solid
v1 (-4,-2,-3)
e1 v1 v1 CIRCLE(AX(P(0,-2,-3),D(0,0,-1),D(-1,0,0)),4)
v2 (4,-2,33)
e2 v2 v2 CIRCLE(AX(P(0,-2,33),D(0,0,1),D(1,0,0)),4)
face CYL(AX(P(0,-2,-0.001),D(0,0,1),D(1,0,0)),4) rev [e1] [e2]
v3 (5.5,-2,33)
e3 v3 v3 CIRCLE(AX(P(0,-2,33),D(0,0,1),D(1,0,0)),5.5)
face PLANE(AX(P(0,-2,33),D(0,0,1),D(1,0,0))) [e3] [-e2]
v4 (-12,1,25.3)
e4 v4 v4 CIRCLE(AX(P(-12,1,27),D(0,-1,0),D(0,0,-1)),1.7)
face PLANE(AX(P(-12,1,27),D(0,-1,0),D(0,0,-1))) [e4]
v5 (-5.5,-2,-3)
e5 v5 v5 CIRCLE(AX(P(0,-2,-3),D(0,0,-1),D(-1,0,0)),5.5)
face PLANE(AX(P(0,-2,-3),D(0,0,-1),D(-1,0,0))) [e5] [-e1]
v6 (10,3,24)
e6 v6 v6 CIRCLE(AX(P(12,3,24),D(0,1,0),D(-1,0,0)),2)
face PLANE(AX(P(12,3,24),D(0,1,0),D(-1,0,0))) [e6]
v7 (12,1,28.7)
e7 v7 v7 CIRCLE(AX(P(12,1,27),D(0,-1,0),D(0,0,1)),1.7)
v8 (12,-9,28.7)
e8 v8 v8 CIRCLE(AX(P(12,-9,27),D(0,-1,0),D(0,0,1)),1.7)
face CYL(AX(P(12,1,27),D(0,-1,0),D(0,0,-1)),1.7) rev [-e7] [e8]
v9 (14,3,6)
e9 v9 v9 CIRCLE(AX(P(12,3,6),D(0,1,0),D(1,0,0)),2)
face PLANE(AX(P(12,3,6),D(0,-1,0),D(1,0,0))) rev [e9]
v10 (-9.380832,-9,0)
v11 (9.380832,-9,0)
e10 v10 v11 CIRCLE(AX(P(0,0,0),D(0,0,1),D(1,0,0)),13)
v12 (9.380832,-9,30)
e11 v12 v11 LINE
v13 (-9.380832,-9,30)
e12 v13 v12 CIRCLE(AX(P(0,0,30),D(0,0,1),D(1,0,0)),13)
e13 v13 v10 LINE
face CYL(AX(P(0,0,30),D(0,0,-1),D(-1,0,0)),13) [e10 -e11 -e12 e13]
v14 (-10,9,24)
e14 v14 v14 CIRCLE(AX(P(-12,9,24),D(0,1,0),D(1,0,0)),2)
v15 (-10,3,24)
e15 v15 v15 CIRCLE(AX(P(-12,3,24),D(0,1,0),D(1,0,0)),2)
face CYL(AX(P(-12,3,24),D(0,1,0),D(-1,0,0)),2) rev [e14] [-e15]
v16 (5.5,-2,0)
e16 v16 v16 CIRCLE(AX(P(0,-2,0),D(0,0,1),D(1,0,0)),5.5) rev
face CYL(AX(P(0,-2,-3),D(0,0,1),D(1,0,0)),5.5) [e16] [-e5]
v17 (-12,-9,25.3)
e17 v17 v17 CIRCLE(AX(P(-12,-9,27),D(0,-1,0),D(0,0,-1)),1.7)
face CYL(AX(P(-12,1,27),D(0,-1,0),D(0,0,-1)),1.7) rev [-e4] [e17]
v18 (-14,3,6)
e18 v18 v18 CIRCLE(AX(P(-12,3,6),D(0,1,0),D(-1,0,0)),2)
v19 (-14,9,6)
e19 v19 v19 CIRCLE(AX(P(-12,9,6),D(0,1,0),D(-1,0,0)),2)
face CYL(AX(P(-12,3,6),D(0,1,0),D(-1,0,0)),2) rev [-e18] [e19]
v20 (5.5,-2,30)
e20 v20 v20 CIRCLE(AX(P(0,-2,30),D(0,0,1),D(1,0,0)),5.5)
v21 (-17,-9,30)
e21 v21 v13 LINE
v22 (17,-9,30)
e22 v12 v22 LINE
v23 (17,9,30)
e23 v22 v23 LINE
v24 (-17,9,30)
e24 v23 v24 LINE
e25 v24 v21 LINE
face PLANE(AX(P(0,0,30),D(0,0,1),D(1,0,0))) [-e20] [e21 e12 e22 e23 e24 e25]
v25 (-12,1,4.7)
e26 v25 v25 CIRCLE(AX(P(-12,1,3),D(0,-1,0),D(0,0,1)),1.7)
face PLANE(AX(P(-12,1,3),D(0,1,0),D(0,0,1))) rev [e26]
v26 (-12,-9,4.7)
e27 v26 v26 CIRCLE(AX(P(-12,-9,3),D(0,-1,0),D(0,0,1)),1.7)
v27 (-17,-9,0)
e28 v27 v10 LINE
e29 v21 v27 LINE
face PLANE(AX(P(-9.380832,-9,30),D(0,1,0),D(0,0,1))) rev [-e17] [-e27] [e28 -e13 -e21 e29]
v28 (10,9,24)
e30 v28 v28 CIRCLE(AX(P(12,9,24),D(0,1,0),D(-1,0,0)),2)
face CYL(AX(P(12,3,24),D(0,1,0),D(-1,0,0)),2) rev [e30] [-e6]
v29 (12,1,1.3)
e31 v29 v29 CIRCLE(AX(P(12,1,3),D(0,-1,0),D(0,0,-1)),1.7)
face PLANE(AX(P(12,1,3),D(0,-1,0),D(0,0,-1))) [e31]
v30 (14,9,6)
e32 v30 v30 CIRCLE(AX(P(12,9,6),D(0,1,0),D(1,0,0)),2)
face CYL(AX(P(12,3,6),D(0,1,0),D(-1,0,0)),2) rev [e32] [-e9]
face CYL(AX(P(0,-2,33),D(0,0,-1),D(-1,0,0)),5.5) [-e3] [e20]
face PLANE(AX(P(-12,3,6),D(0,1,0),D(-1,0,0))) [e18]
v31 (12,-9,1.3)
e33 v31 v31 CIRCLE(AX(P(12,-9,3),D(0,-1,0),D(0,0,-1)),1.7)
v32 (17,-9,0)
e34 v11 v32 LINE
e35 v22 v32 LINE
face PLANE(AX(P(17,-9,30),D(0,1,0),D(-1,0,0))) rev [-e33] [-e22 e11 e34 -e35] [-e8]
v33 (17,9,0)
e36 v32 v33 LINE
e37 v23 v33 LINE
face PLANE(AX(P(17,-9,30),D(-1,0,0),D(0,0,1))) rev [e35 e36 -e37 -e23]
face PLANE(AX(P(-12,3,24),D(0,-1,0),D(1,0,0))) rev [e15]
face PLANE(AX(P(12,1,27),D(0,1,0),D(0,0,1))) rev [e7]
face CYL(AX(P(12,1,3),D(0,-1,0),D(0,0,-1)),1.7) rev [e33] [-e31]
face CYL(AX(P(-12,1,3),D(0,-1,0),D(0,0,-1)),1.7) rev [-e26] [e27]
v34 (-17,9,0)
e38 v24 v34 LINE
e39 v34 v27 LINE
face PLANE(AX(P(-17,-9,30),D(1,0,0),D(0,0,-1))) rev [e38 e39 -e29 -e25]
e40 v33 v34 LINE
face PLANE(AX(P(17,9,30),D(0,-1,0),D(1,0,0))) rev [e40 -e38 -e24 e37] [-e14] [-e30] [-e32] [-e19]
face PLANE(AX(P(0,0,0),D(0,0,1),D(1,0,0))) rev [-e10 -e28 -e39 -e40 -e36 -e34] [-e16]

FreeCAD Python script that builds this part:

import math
import FreeCAD as App
import Part
import Sketcher

V = App.Vector
Q = App.Units.Quantity

doc = App.newDocument("Part")
body = doc.addObject("PartDesign::Body", "Body")

# Sketch on XY plane
sketch1 = body.newObject("Sketcher::SketchObject", "Sketch")
sketch1.AttachmentSupport = (doc.getObject("XY_Plane"), [""])
sketch1.MapMode = "FlatFace"
sketch1.addGeometry([
    Part.LineSegment(V(-17, -9, 0), V(-9.380832, -9, 0)),  # 0
    Part.ArcOfCircle(Part.Circle(V(0, 0, 0), V(0, 0, 1), 13), math.radians(-136.186939), math.radians(-43.813061)),  # 1
    Part.LineSegment(V(9.380832, -9, 0), V(17, -9, 0)),  # 2
    Part.LineSegment(V(17, -9, 0), V(17, 9, 0)),  # 3
    Part.LineSegment(V(17, 9, 0), V(-17, 9, 0)),  # 4
    Part.LineSegment(V(-17, 9, 0), V(-17, -9, 0)),  # 5
], False)
sketch1.addConstraint([
    Sketcher.Constraint("Coincident", 0, 2, 1, 1),
    Sketcher.Constraint("Coincident", 1, 2, 2, 1),
    Sketcher.Constraint("Coincident", 2, 2, 3, 1),
    Sketcher.Constraint("Coincident", 3, 2, 4, 1),
    Sketcher.Constraint("Coincident", 4, 2, 5, 1),
    Sketcher.Constraint("Coincident", 5, 2, 0, 1),
    Sketcher.Constraint("Horizontal", 0),
    Sketcher.Constraint("Horizontal", 2),
    Sketcher.Constraint("Vertical", 3),
    Sketcher.Constraint("Horizontal", 4),
    Sketcher.Constraint("Vertical", 5),
    Sketcher.Constraint("Coincident", 1, 3, -1, 1),
    Sketcher.Constraint("Symmetric", 2, 2, 4, 2, -1, 1),
    Sketcher.Constraint("Horizontal", 0, 2, 1, 2),
    Sketcher.Constraint("Radius", 1, Q("13 mm")),
    Sketcher.Constraint("DistanceX", 4, 2, 4, 1, Q("34 mm")),
    Sketcher.Constraint("DistanceY", 3, 1, 3, 2, Q("18 mm")),
])
pad1 = body.newObject("PartDesign::Pad", "Pad")
pad1.Profile = sketch1
pad1.Length = 30

# Sketch on XY plane
sketch2 = body.newObject("Sketcher::SketchObject", "Sketch001")
sketch2.AttachmentSupport = (doc.getObject("XY_Plane"), [""])
sketch2.MapMode = "FlatFace"
sketch2.AttachmentOffset = App.Placement(V(0, 0, 30), App.Rotation())
sketch2.addGeometry(Part.Circle(V(0, -2, 0), V(0, 0, 1), 4), False)
sketch2.addConstraint([
    Sketcher.Constraint("PointOnObject", 0, 3, -2),
    Sketcher.Constraint("Diameter", 0, Q("8 mm")),
    Sketcher.Constraint("DistanceY", 0, 3, -1, 1, Q("2 mm")),
])
pocket1 = body.newObject("PartDesign::Pocket", "Pocket")
pocket1.Profile = sketch2
pocket1.Type = "UpToFirst"

# Sketch on XY plane
sketch3 = body.newObject("Sketcher::SketchObject", "Sketch002")
sketch3.AttachmentSupport = (doc.getObject("XY_Plane"), [""])
sketch3.MapMode = "FlatFace"
sketch3.AttachmentOffset = App.Placement(V(0, 0, 33), App.Rotation())
sketch3.addGeometry([
    Part.Circle(V(0, -2, 0), V(0, 0, 1), 5.5),
    Part.Circle(V(0, -2, 0), V(0, 0, 1), 4),
], False)
sketch3.addConstraint([
    Sketcher.Constraint("Coincident", 1, 3, 0, 3),
    Sketcher.Constraint("PointOnObject", 0, 3, -2),
    Sketcher.Constraint("Diameter", 0, Q("11 mm")),
    Sketcher.Constraint("Diameter", 1, Q("8 mm")),
    Sketcher.Constraint("DistanceY", 0, 3, -1, 1, Q("2 mm")),
])
pad2 = body.newObject("PartDesign::Pad", "Pad001")
pad2.Profile = sketch3
pad2.Length = 3
pad2.Reversed = True

# Sketch on XY plane
sketch4 = body.newObject("Sketcher::SketchObject", "Sketch003")
sketch4.AttachmentSupport = (doc.getObject("XY_Plane"), [""])
sketch4.MapMode = "FlatFace"
sketch4.addGeometry([
    Part.Circle(V(0, -2, 0), V(0, 0, 1), 5.5),
    Part.Circle(V(0, -2, 0), V(0, 0, 1), 4),
], False)
sketch4.addConstraint([
    Sketcher.Constraint("Coincident", 1, 3, 0, 3),
    Sketcher.Constraint("PointOnObject", 0, 3, -2),
    Sketcher.Constraint("Diameter", 0, Q("11 mm")),
    Sketcher.Constraint("Diameter", 1, Q("8 mm")),
    Sketcher.Constraint("DistanceY", 0, 3, -1, 1, Q("2 mm")),
])
pad3 = body.newObject("PartDesign::Pad", "Pad002")
pad3.Profile = sketch4
pad3.Length = 3
pad3.Reversed = True

# Sketch on XZ plane
sketch5 = body.newObject("Sketcher::SketchObject", "Sketch004")
sketch5.AttachmentSupport = (doc.getObject("XZ_Plane"), [""])
sketch5.MapMode = "FlatFace"
sketch5.AttachmentOffset = App.Placement(V(0, 0, -9), App.Rotation())
sketch5.addGeometry([
    Part.Circle(V(-12, 6, 0), V(0, 0, 1), 2),
    Part.Circle(V(-12, 24, 0), V(0, 0, 1), 2),
    Part.Circle(V(12, 24, 0), V(0, 0, 1), 2),
    Part.Circle(V(12, 6, 0), V(0, 0, 1), 2),
], False)
sketch5.addConstraint([
    Sketcher.Constraint("Equal", 0, 1),
    Sketcher.Constraint("Equal", 1, 2),
    Sketcher.Constraint("Equal", 2, 3),
    Sketcher.Constraint("Symmetric", 1, 3, 2, 3, -2),
    Sketcher.Constraint("Symmetric", 0, 3, 3, 3, -2),
    Sketcher.Constraint("Vertical", 0, 3, 1, 3),
    Sketcher.Constraint("Diameter", 0, Q("4 mm")),
    Sketcher.Constraint("DistanceX", 0, 3, -1, 1, Q("12 mm")),
    Sketcher.Constraint("DistanceY", -1, 1, 0, 3, Q("6 mm")),
    Sketcher.Constraint("DistanceY", -1, 1, 1, 3, Q("24 mm")),
])
pocket2 = body.newObject("PartDesign::Pocket", "Pocket001")
pocket2.Profile = sketch5
pocket2.Length = 6
pocket2.Reversed = True

# Sketch on XZ plane
sketch6 = body.newObject("Sketcher::SketchObject", "Sketch005")
sketch6.AttachmentSupport = (doc.getObject("XZ_Plane"), [""])
sketch6.MapMode = "FlatFace"
sketch6.AttachmentOffset = App.Placement(V(0, 0, 9), App.Rotation())
sketch6.addGeometry([
    Part.Circle(V(-12, 27, 0), V(0, 0, 1), 1.7),
    Part.Circle(V(-12, 3, 0), V(0, 0, 1), 1.7),
    Part.Circle(V(12, 3, 0), V(0, 0, 1), 1.7),
    Part.Circle(V(12, 27, 0), V(0, 0, 1), 1.7),
], False)
sketch6.addConstraint([
    Sketcher.Constraint("Equal", 0, 1),
    Sketcher.Constraint("Equal", 1, 2),
    Sketcher.Constraint("Equal", 2, 3),
    Sketcher.Constraint("Symmetric", 1, 3, 2, 3, -2),
    Sketcher.Constraint("Symmetric", 0, 3, 3, 3, -2),
    Sketcher.Constraint("Vertical", 0, 3, 1, 3),
    Sketcher.Constraint("Diameter", 0, Q("3.4 mm")),
    Sketcher.Constraint("DistanceX", 0, 3, -1, 1, Q("12 mm")),
    Sketcher.Constraint("DistanceY", -1, 1, 0, 3, Q("27 mm")),
    Sketcher.Constraint("DistanceY", -1, 1, 1, 3, Q("3 mm")),
])
pocket3 = body.newObject("PartDesign::Pocket", "Pocket002")
pocket3.Profile = sketch6
pocket3.Length = 10

doc.recompute()
